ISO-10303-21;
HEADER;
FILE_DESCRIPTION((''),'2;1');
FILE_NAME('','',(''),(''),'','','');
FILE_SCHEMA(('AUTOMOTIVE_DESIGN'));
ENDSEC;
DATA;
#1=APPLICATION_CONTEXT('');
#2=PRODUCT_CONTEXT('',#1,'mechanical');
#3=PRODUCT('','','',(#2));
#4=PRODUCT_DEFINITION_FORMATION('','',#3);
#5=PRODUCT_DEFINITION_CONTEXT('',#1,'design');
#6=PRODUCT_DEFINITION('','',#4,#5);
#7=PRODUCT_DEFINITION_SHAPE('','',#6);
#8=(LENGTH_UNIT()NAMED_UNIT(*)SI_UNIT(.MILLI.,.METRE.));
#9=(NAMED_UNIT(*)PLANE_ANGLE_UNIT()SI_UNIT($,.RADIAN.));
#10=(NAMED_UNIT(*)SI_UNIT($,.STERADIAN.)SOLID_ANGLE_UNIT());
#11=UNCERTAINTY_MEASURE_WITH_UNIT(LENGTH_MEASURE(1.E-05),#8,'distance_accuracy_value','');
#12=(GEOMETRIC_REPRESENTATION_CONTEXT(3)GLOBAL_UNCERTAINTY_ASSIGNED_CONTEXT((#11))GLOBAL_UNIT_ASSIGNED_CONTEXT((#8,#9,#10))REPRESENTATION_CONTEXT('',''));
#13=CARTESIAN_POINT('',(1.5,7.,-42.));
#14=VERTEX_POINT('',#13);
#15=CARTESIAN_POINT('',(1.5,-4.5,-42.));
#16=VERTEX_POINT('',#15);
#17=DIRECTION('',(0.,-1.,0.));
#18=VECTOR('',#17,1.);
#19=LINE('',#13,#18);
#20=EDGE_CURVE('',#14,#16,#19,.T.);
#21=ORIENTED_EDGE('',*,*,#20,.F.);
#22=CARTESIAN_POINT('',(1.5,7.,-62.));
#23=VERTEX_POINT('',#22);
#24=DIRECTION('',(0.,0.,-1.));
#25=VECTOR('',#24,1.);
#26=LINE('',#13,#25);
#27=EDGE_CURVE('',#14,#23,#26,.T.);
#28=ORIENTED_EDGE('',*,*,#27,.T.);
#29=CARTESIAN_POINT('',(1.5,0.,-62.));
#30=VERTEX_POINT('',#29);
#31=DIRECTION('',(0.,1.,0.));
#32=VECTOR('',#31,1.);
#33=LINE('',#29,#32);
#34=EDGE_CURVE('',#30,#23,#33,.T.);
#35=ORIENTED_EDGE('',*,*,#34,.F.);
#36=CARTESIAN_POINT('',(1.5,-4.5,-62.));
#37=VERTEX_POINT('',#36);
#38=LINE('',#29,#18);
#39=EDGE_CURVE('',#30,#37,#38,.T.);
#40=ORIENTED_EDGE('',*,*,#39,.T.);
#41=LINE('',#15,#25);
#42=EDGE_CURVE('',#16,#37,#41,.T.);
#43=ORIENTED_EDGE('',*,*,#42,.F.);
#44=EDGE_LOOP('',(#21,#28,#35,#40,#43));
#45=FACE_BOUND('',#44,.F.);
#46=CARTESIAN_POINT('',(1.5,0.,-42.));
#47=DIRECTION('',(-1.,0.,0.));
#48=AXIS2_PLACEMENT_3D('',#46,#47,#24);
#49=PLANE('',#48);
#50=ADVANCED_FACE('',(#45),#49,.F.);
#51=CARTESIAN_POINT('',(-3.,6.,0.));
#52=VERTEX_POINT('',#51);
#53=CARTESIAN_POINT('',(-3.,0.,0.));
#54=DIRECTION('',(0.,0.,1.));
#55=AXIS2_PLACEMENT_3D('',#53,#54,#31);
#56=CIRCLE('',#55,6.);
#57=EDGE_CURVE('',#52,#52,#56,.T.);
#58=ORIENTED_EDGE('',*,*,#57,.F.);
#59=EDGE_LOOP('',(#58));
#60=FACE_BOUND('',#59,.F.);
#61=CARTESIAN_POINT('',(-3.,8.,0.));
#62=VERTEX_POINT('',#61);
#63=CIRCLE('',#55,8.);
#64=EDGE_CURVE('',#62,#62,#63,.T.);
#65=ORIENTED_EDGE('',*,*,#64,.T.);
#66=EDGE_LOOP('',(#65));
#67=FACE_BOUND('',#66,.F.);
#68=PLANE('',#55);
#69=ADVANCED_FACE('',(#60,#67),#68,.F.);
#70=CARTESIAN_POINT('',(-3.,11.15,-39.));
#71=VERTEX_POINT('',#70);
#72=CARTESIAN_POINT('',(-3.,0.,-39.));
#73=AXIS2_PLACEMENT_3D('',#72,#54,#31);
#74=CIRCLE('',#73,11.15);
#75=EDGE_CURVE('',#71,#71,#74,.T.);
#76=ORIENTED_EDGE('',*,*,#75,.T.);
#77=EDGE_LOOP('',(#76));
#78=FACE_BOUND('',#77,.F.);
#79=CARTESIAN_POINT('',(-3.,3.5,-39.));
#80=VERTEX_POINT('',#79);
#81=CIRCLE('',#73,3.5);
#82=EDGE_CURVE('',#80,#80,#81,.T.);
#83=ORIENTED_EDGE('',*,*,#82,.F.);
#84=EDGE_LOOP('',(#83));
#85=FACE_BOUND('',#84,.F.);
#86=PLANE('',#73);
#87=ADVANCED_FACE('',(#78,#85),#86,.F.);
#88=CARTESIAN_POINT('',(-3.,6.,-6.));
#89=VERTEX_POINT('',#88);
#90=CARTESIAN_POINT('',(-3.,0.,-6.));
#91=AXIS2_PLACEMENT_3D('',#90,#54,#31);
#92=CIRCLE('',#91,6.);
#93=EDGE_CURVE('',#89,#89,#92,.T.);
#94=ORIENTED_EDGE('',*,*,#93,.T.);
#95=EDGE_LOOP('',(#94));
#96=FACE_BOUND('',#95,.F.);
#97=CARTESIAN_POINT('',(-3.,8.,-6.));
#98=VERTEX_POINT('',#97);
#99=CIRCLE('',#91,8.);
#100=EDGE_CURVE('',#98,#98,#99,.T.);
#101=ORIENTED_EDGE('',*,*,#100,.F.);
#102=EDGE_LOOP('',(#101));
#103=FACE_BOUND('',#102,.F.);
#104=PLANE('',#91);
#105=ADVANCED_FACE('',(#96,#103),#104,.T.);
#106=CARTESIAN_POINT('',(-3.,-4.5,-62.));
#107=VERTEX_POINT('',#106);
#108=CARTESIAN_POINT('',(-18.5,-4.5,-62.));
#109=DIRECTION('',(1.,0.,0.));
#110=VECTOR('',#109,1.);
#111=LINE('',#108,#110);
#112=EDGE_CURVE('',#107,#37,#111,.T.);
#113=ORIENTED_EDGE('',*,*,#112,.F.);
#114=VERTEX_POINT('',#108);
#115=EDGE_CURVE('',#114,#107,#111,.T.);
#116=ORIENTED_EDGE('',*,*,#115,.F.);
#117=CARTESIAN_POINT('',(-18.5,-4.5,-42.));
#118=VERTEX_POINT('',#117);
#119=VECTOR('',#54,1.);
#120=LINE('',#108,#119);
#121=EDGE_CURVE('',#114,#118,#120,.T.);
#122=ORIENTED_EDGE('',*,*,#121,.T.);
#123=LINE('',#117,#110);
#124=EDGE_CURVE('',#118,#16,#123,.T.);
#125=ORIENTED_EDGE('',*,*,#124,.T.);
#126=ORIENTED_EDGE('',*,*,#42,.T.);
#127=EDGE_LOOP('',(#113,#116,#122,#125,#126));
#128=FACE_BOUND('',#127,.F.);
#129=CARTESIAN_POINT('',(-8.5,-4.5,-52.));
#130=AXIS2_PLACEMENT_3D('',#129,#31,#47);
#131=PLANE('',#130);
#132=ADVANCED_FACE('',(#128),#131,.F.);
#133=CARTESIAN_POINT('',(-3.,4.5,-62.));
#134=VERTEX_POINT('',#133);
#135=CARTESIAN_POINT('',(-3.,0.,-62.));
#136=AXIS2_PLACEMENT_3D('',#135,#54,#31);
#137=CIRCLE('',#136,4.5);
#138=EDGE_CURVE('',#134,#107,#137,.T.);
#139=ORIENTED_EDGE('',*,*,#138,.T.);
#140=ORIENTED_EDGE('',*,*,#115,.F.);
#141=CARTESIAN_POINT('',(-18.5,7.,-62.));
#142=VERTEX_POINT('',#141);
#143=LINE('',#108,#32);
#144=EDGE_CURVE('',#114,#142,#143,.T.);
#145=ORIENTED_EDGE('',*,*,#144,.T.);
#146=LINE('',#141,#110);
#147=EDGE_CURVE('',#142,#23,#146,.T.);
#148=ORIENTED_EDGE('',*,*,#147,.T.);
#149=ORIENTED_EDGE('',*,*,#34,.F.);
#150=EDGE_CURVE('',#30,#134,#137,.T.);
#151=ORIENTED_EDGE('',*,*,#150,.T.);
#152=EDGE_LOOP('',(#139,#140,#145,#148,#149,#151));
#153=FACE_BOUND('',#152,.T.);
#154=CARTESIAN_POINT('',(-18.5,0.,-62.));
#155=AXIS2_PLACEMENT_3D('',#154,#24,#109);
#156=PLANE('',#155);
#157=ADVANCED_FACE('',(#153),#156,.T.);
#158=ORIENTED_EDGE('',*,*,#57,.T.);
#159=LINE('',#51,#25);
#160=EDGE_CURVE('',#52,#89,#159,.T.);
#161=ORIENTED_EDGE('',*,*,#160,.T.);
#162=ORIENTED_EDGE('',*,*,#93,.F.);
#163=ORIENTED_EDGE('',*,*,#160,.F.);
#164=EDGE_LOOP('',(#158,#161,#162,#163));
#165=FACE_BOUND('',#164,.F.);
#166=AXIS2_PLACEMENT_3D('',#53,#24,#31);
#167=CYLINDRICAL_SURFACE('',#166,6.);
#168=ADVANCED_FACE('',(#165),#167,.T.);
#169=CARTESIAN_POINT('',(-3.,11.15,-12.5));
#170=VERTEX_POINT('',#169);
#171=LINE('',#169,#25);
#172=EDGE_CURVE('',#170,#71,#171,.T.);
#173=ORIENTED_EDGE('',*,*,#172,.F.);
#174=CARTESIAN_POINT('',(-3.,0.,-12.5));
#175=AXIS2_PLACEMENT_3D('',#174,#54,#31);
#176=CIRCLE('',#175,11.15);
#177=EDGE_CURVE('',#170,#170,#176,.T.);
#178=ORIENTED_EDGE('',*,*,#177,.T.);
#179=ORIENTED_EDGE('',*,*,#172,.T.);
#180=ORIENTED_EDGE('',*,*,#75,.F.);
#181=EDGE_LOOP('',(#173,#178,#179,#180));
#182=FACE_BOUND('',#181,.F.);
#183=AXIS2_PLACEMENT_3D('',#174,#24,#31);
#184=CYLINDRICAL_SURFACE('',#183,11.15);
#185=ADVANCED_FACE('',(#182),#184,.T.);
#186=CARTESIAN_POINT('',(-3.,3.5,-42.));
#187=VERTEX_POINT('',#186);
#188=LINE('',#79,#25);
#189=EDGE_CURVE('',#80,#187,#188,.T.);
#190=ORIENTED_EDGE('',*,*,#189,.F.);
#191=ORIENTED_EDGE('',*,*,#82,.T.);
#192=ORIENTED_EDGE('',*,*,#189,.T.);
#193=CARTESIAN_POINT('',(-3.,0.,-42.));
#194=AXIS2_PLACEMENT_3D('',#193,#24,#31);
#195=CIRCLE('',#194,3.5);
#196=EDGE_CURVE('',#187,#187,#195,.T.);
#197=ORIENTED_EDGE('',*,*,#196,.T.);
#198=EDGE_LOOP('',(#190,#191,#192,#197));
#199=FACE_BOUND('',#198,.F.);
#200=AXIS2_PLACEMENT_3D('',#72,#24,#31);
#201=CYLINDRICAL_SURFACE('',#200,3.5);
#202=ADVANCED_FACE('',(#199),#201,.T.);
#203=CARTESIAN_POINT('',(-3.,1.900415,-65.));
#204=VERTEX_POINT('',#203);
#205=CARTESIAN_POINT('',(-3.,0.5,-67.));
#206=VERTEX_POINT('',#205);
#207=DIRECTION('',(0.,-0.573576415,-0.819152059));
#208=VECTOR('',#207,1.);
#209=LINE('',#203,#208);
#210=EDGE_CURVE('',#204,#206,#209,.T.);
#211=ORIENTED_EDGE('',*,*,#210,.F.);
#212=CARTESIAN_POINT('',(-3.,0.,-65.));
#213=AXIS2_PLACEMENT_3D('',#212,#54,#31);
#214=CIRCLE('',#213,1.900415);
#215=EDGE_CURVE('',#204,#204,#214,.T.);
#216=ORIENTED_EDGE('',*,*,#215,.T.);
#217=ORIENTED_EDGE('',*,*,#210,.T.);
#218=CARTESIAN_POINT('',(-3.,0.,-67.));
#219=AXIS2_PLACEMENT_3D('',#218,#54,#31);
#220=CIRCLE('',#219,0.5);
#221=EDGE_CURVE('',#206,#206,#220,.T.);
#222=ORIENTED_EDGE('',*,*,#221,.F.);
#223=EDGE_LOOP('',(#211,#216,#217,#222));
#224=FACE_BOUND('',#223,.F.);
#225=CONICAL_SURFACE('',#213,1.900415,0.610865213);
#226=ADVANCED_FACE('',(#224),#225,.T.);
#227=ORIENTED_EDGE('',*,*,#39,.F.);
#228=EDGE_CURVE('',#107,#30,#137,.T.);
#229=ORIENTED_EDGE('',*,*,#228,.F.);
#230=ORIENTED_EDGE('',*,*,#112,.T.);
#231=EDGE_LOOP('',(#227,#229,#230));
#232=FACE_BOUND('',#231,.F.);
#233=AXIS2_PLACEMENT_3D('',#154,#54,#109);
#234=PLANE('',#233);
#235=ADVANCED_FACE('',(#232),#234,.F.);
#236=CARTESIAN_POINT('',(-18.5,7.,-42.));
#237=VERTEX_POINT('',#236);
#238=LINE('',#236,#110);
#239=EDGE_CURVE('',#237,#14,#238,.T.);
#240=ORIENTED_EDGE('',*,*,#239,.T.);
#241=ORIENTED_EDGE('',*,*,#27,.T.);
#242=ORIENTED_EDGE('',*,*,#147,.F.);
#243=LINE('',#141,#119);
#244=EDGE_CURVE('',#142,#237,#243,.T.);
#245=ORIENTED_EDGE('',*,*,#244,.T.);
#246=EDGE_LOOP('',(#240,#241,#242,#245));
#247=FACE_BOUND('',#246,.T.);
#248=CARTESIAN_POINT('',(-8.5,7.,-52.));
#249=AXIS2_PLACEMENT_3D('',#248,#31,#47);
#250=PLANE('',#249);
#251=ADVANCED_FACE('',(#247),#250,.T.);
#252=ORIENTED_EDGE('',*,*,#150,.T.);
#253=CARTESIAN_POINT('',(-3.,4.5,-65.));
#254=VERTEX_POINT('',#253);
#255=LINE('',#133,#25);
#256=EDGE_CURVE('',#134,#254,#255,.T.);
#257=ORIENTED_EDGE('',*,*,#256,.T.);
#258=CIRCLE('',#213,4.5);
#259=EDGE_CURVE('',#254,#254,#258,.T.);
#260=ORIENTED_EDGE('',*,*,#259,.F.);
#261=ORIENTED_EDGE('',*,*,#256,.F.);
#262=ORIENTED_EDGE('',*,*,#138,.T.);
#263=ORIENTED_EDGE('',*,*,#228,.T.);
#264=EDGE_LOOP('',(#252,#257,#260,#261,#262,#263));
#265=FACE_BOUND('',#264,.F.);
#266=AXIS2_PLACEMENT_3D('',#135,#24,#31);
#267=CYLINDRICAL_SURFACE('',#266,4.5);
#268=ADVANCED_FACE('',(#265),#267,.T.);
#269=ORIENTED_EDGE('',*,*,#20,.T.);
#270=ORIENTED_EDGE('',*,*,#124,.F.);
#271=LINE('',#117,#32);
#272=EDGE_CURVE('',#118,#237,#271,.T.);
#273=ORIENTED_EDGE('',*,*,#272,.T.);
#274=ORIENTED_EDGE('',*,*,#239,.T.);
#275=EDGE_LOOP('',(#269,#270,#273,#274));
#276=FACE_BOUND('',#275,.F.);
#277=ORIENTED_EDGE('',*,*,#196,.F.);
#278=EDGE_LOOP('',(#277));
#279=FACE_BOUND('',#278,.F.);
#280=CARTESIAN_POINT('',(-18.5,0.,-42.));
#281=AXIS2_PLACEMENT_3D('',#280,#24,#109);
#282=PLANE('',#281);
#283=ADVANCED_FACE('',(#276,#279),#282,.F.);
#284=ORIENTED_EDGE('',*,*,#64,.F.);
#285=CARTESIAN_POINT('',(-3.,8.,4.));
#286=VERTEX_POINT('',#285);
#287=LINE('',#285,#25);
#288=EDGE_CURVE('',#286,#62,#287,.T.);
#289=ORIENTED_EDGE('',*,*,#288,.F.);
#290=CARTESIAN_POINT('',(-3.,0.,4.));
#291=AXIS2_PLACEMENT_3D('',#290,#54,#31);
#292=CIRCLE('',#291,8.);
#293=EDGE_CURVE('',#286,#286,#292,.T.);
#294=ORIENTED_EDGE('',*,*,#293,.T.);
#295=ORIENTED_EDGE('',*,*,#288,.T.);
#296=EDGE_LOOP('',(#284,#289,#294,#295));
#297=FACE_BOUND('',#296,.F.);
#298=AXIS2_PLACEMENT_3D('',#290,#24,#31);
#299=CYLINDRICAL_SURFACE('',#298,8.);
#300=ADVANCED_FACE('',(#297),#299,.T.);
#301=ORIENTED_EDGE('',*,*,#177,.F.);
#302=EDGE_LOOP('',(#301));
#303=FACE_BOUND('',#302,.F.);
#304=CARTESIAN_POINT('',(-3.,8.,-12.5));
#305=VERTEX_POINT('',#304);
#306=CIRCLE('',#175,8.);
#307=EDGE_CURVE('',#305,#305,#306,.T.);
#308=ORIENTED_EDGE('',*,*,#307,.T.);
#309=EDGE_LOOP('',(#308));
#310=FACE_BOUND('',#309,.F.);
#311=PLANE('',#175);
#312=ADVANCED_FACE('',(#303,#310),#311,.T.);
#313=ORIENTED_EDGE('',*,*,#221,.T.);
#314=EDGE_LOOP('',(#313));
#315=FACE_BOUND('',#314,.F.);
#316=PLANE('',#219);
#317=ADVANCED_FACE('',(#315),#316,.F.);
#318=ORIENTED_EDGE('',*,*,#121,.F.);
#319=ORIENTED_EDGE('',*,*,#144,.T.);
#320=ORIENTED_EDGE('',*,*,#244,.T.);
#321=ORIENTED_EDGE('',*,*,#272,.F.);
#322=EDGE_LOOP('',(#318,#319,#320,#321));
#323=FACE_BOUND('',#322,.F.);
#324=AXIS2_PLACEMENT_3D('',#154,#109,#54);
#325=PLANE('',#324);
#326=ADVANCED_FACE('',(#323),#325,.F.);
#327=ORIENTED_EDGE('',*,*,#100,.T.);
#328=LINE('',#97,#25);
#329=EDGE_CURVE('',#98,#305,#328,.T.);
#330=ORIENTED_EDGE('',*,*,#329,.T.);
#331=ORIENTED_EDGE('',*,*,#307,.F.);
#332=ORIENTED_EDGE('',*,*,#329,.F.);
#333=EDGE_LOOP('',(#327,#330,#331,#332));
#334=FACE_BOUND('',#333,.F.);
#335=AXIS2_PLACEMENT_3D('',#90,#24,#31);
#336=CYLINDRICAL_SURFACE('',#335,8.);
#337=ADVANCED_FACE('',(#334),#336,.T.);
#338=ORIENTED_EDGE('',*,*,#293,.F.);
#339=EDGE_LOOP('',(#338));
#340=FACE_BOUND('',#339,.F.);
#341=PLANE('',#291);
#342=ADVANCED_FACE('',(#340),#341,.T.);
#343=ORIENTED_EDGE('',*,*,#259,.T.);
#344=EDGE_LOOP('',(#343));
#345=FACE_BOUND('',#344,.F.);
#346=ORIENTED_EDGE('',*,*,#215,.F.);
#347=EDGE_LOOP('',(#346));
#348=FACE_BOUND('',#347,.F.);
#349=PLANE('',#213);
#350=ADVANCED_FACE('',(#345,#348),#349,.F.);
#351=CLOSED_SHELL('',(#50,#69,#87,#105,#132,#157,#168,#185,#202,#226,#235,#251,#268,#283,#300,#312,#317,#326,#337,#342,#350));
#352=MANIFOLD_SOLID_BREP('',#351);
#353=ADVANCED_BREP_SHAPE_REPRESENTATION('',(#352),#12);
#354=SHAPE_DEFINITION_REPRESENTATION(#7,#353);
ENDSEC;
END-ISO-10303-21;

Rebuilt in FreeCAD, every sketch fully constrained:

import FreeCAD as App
import Part
import Sketcher

V = App.Vector
Q = App.Units.Quantity

doc = App.newDocument("Part")
body = doc.addObject("PartDesign::Body", "Body")

# Sketch on YZ plane
sketch1 = body.newObject("Sketcher::SketchObject", "Sketch")
sketch1.AttachmentSupport = (doc.getObject("YZ_Plane"), [""])
sketch1.MapMode = "FlatFace"
sketch1.addGeometry(Part.LineSegment(V(8, 4, 0), V(0, 4, 0)), False)
sketch1.addGeometry(Part.LineSegment(V(0, 4, 0), V(0, -67, 0)), False)
sketch1.addGeometry(Part.LineSegment(V(0, -67, 0), V(0.5, -67, 0)), False)
sketch1.addGeometry(Part.LineSegment(V(0.5, -67, 0), V(1.900415, -65, 0)), False)
sketch1.addGeometry(Part.LineSegment(V(1.900415, -65, 0), V(4.5, -65, 0)), False)
sketch1.addGeometry(Part.LineSegment(V(4.5, -65, 0), V(4.5, -62, 0)), False)
sketch1.addGeometry(Part.LineSegment(V(4.5, -62, 0), V(3.5, -62, 0)), False)
sketch1.addGeometry(Part.LineSegment(V(3.5, -62, 0), V(3.5, -39, 0)), False)
sketch1.addGeometry(Part.LineSegment(V(3.5, -39, 0), V(11.15, -39, 0)), False)
sketch1.addGeometry(Part.LineSegment(V(11.15, -39, 0), V(11.15, -12.5, 0)), False)
sketch1.addGeometry(Part.LineSegment(V(11.15, -12.5, 0), V(8, -12.5, 0)), False)
sketch1.addGeometry(Part.LineSegment(V(8, -12.5, 0), V(8, -6, 0)), False)
sketch1.addGeometry(Part.LineSegment(V(8, -6, 0), V(6, -6, 0)), False)
sketch1.addGeometry(Part.LineSegment(V(6, -6, 0), V(6, 0, 0)), False)
sketch1.addGeometry(Part.LineSegment(V(6, 0, 0), V(8, 0, 0)), False)
sketch1.addGeometry(Part.LineSegment(V(8, 0, 0), V(8, 4, 0)), False)
sketch1.addConstraint(Sketcher.Constraint("Coincident", 0, 2, 1, 1))
sketch1.addConstraint(Sketcher.Constraint("Coincident", 1, 2, 2, 1))
sketch1.addConstraint(Sketcher.Constraint("Coincident", 2, 2, 3, 1))
sketch1.addConstraint(Sketcher.Constraint("Coincident", 3, 2, 4, 1))
sketch1.addConstraint(Sketcher.Constraint("Coincident", 4, 2, 5, 1))
sketch1.addConstraint(Sketcher.Constraint("Coincident", 5, 2, 6, 1))
sketch1.addConstraint(Sketcher.Constraint("Coincident", 6, 2, 7, 1))
sketch1.addConstraint(Sketcher.Constraint("Coincident", 7, 2, 8, 1))
sketch1.addConstraint(Sketcher.Constraint("Coincident", 8, 2, 9, 1))
sketch1.addConstraint(Sketcher.Constraint("Coincident", 9, 2, 10, 1))
sketch1.addConstraint(Sketcher.Constraint("Coincident", 10, 2, 11, 1))
sketch1.addConstraint(Sketcher.Constraint("Coincident", 11, 2, 12, 1))
sketch1.addConstraint(Sketcher.Constraint("Coincident", 12, 2, 13, 1))
sketch1.addConstraint(Sketcher.Constraint("Coincident", 13, 2, 14, 1))
sketch1.addConstraint(Sketcher.Constraint("Coincident", 14, 2, 15, 1))
sketch1.addConstraint(Sketcher.Constraint("Coincident", 15, 2, 0, 1))
sketch1.addConstraint(Sketcher.Constraint("Horizontal", 0))
sketch1.addConstraint(Sketcher.Constraint("Vertical", 1))
sketch1.addConstraint(Sketcher.Constraint("Horizontal", 2))
sketch1.addConstraint(Sketcher.Constraint("Horizontal", 4))
sketch1.addConstraint(Sketcher.Constraint("Vertical", 5))
sketch1.addConstraint(Sketcher.Constraint("Horizontal", 6))
sketch1.addConstraint(Sketcher.Constraint("Vertical", 7))
sketch1.addConstraint(Sketcher.Constraint("Horizontal", 8))
sketch1.addConstraint(Sketcher.Constraint("Vertical", 9))
sketch1.addConstraint(Sketcher.Constraint("Horizontal", 10))
sketch1.addConstraint(Sketcher.Constraint("Vertical", 11))
sketch1.addConstraint(Sketcher.Constraint("Horizontal", 12))
sketch1.addConstraint(Sketcher.Constraint("Vertical", 13))
sketch1.addConstraint(Sketcher.Constraint("Horizontal", 14))
sketch1.addConstraint(Sketcher.Constraint("Vertical", 15))
sketch1.addConstraint(Sketcher.Constraint("PointOnObject", 0, 2, -2))
sketch1.addConstraint(Sketcher.Constraint("PointOnObject", 13, 2, -1))
sketch1.addConstraint(Sketcher.Constraint("Vertical", 11, 2, 14, 2))
sketch1.addConstraint(Sketcher.Constraint("DistanceX", 0, 2, 0, 1, Q("8 mm")))
sketch1.addConstraint(Sketcher.Constraint("DistanceX", 6, 2, 6, 1, Q("1 mm")))
sketch1.addConstraint(Sketcher.Constraint("DistanceX", 12, 2, 12, 1, Q("2 mm")))
sketch1.addConstraint(Sketcher.Constraint("DistanceY", 1, 2, 1, 1, Q("71 mm")))
sketch1.addConstraint(Sketcher.Constraint("DistanceY", 5, 1, 5, 2, Q("3 mm")))
sketch1.addConstraint(Sketcher.Constraint("DistanceY", 7, 1, 7, 2, Q("23 mm")))
sketch1.addConstraint(Sketcher.Constraint("DistanceY", 13, 1, 13, 2, Q("6 mm")))
sketch1.addConstraint(Sketcher.Constraint("DistanceY", 15, 1, 15, 2, Q("4 mm")))
sketch1.addConstraint(Sketcher.Constraint("Angle", 3, Q("55.000001 deg")))
sketch1.addConstraint(Sketcher.Constraint("DistanceX", 2, 1, 2, 2, Q("0.5 mm")))
sketch1.addConstraint(Sketcher.Constraint("DistanceY", 9, 1, 9, 2, Q("26.5 mm")))
sketch1.addConstraint(Sketcher.Constraint("DistanceY", 11, 1, 11, 2, Q("6.5 mm")))
sketch1.addConstraint(Sketcher.Constraint("DistanceX", 2, 2, 4, 2, Q("4 mm")))
sketch1.addConstraint(Sketcher.Constraint("DistanceX", 8, 1, 8, 2, Q("7.65 mm")))
revolution = body.newObject("PartDesign::Revolution", "Revolution")
revolution.Profile = sketch1
revolution.ReferenceAxis = (sketch1, ["V_Axis"])
revolution.Angle = 360

# Sketch on XZ plane
sketch2 = body.newObject("Sketcher::SketchObject", "Sketch001")
sketch2.AttachmentSupport = (doc.getObject("XZ_Plane"), [""])
sketch2.MapMode = "FlatFace"
sketch2.addGeometry(Part.LineSegment(V(-15.5, -62, 0), V(4.5, -62, 0)), False)
sketch2.addGeometry(Part.LineSegment(V(4.5, -62, 0), V(4.5, -42, 0)), False)
sketch2.addGeometry(Part.LineSegment(V(4.5, -42, 0), V(-15.5, -42, 0)), False)
sketch2.addGeometry(Part.LineSegment(V(-15.5, -42, 0), V(-15.5, -62, 0)), False)
sketch2.addConstraint(Sketcher.Constraint("Coincident", 0, 2, 1, 1))
sketch2.addConstraint(Sketcher.Constraint("Coincident", 1, 2, 2, 1))
sketch2.addConstraint(Sketcher.Constraint("Coincident", 2, 2, 3, 1))
sketch2.addConstraint(Sketcher.Constraint("Coincident", 3, 2, 0, 1))
sketch2.addConstraint(Sketcher.Constraint("Horizontal", 0))
sketch2.addConstraint(Sketcher.Constraint("Vertical", 1))
sketch2.addConstraint(Sketcher.Constraint("Horizontal", 2))
sketch2.addConstraint(Sketcher.Constraint("Vertical", 3))
sketch2.addConstraint(Sketcher.Constraint("Equal", 2, 1))
sketch2.addConstraint(Sketcher.Constraint("DistanceX", 0, 1, 0, 2, Q("20 mm")))
sketch2.addConstraint(Sketcher.Constraint("DistanceY", 0, 2, -1, 1, Q("62 mm")))
sketch2.addConstraint(Sketcher.Constraint("DistanceX", -1, 1, 0, 2, Q("4.5 mm")))
pad1 = body.newObject("PartDesign::Pad", "Pad")
pad1.Profile = sketch2
pad1.Length = 4.5

# Sketch on XZ plane
sketch3 = body.newObject("Sketcher::SketchObject", "Sketch002")
sketch3.AttachmentSupport = (doc.getObject("XZ_Plane"), [""])
sketch3.MapMode = "FlatFace"
sketch3.addGeometry(Part.LineSegment(V(-15.5, -62, 0), V(4.5, -62, 0)), False)
sketch3.addGeometry(Part.LineSegment(V(4.5, -62, 0), V(4.5, -42, 0)), False)
sketch3.addGeometry(Part.LineSegment(V(4.5, -42, 0), V(-15.5, -42, 0)), False)
sketch3.addGeometry(Part.LineSegment(V(-15.5, -42, 0), V(-15.5, -62, 0)), False)
sketch3.addConstraint(Sketcher.Constraint("Coincident", 0, 2, 1, 1))
sketch3.addConstraint(Sketcher.Constraint("Coincident", 1, 2, 2, 1))
sketch3.addConstraint(Sketcher.Constraint("Coincident", 2, 2, 3, 1))
sketch3.addConstraint(Sketcher.Constraint("Coincident", 3, 2, 0, 1))
sketch3.addConstraint(Sketcher.Constraint("Horizontal", 0))
sketch3.addConstraint(Sketcher.Constraint("Vertical", 1))
sketch3.addConstraint(Sketcher.Constraint("Horizontal", 2))
sketch3.addConstraint(Sketcher.Constraint("Vertical", 3))
sketch3.addConstraint(Sketcher.Constraint("Equal", 2, 1))
sketch3.addConstraint(Sketcher.Constraint("DistanceX", 0, 1, 0, 2, Q("20 mm")))
sketch3.addConstraint(Sketcher.Constraint("DistanceY", 0, 2, -1, 1, Q("62 mm")))
sketch3.addConstraint(Sketcher.Constraint("DistanceX", -1, 1, 0, 2, Q("4.5 mm")))
pad2 = body.newObject("PartDesign::Pad", "Pad001")
pad2.Profile = sketch3
pad2.Length = 7
pad2.Reversed = True
body2 = doc.addObject("PartDesign::Body", "Body001")
doc.recompute()

body.Placement = App.Placement(V(-3, 0, 0), App.Rotation(V(0, 0, 1), 0))
boolean = body2.newObject("PartDesign::Boolean", "Boolean")
boolean.Type = "Fuse"
boolean.addObjects([body])

doc.recompute()
